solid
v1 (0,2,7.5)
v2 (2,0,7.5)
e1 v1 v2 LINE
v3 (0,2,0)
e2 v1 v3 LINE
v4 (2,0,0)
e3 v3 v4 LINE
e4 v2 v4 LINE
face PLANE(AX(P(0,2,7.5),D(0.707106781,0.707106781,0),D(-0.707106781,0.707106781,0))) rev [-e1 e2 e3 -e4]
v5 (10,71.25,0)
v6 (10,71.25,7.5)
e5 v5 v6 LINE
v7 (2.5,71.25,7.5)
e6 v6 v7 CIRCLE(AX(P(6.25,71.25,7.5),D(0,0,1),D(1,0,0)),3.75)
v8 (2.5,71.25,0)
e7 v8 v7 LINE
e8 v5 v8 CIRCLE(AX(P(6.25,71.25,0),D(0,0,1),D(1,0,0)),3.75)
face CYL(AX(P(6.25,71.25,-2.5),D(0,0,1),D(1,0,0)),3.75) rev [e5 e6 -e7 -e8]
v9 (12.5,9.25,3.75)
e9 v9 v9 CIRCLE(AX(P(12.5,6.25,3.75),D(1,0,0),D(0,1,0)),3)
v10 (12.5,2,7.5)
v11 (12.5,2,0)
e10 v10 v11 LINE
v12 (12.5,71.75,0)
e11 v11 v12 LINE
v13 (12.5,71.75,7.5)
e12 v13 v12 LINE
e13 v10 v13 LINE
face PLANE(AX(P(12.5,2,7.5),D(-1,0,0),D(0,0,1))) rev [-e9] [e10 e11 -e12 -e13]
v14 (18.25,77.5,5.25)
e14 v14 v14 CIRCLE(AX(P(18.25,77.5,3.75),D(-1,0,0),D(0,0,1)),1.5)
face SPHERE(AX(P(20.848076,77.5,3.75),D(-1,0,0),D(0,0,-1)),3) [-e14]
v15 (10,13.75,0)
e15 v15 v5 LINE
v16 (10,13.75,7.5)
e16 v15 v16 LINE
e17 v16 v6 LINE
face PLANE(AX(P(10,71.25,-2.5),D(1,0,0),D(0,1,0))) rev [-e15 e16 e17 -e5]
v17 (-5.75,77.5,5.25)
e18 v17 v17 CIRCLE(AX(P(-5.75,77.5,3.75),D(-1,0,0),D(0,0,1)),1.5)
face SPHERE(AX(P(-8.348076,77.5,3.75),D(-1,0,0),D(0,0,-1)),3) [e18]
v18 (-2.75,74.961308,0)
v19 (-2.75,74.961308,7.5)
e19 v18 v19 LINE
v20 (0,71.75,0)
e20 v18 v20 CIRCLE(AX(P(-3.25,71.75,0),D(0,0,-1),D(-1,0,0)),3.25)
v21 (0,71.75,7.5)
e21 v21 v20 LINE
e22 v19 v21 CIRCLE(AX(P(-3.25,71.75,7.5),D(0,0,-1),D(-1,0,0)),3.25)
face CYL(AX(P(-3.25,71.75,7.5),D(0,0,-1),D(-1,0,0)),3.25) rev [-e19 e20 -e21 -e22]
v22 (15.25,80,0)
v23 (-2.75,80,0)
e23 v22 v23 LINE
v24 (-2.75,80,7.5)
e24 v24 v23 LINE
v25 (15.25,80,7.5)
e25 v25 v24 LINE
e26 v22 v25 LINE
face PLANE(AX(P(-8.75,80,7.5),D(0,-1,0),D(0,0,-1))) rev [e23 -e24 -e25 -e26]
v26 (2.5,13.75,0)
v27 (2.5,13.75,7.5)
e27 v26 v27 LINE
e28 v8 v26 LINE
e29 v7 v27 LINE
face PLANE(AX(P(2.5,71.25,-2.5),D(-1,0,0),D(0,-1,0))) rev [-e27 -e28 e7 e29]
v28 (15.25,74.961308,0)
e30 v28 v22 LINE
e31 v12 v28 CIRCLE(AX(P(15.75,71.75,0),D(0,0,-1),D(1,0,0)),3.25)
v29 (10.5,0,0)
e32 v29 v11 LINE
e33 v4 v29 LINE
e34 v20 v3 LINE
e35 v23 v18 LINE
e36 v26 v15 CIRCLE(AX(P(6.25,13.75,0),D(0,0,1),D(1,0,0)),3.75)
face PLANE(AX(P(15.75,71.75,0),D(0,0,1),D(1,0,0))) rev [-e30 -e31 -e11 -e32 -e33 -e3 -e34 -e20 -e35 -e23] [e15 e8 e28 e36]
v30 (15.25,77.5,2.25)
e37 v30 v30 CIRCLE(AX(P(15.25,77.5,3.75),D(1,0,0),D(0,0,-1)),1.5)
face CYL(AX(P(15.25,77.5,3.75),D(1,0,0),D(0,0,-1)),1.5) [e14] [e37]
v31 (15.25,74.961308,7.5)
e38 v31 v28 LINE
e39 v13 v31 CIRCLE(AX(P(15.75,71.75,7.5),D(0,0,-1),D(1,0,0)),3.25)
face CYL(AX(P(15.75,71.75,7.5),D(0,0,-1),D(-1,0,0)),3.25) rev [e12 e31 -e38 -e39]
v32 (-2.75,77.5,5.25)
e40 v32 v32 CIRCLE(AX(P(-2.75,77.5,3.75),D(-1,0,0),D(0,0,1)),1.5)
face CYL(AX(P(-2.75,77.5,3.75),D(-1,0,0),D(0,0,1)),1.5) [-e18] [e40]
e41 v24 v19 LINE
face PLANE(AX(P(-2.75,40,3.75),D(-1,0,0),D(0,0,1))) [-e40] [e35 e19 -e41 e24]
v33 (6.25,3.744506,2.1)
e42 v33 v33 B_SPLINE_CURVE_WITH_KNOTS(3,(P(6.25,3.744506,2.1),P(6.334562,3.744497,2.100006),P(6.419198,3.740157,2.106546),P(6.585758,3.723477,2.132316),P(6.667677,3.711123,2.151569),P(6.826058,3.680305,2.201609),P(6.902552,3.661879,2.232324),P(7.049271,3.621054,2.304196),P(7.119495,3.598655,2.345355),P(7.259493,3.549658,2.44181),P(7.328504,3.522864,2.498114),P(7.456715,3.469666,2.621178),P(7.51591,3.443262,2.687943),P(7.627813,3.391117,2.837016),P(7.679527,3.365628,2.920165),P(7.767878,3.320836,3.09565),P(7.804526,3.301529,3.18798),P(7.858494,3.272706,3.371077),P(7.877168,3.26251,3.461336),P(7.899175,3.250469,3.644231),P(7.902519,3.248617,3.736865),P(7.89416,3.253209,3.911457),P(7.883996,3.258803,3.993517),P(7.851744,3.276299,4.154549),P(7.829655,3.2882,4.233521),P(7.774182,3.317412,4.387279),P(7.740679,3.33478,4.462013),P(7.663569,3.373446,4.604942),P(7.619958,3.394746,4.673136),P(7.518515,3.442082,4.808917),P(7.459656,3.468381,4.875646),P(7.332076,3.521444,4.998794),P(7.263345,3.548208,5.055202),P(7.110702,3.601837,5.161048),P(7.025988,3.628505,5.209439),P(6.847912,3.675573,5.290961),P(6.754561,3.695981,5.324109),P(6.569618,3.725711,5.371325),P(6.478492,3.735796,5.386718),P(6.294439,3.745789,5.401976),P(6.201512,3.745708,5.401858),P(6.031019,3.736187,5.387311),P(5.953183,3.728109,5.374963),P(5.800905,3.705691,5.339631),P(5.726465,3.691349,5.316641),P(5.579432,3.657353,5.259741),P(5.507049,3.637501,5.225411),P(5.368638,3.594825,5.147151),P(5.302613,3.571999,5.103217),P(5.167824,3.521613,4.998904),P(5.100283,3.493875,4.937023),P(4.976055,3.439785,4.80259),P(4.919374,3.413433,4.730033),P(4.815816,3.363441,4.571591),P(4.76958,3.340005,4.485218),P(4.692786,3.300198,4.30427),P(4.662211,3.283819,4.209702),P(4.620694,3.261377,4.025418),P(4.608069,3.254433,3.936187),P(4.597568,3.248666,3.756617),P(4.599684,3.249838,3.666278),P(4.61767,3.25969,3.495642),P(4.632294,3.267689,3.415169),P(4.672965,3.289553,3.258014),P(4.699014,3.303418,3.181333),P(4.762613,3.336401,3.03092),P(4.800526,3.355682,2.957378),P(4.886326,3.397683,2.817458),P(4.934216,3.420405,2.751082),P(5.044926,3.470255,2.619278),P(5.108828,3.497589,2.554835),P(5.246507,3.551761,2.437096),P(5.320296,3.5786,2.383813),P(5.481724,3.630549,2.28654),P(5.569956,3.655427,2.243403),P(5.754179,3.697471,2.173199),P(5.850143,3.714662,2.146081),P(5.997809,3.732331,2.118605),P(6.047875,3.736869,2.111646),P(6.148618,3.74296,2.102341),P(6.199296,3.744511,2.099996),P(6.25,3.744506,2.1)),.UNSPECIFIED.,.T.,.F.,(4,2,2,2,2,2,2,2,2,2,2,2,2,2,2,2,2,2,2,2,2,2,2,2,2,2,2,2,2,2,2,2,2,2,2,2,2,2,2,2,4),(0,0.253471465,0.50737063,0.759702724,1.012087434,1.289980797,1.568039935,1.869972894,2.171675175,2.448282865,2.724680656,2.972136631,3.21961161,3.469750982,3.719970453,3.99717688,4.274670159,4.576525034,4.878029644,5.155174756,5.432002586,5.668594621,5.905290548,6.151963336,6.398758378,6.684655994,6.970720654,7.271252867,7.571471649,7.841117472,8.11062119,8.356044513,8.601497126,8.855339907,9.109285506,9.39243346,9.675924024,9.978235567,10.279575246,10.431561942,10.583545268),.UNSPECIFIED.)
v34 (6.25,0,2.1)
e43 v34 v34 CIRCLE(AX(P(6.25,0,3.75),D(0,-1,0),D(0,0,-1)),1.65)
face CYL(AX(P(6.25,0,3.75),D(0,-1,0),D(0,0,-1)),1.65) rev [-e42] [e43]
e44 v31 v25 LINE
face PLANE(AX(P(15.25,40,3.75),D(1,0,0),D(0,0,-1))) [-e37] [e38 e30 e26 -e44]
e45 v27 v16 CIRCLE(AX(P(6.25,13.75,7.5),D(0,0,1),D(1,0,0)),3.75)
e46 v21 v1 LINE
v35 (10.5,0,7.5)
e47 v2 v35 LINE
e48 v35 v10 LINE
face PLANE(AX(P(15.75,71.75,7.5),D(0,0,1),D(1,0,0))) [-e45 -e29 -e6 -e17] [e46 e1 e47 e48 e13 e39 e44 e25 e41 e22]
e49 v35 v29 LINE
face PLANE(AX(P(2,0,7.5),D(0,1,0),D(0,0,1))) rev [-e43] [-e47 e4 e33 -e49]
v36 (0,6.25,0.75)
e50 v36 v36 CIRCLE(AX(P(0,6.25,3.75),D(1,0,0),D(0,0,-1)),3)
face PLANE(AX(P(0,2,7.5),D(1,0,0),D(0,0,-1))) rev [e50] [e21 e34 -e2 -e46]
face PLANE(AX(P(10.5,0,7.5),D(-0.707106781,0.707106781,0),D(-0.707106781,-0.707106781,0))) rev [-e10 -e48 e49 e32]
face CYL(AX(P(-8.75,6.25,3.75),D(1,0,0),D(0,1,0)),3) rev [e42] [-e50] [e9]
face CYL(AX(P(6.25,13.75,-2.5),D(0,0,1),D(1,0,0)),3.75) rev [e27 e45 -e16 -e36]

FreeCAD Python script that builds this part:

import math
import FreeCAD as App
import Part
import Sketcher

doc = App.newDocument("Part")
params = doc.addObject("Spreadsheet::Sheet", "Params")
for row, (alias, value) in enumerate([
    ("sketch1_width", "30 mm"),
    ("sketch1_height", "5 mm"),
    ("sketch1_radius", "3.25 mm"),
    ("sketch1_width2", "5.5 mm"),
    ("sketch1_width3", "8.5 mm"),
    ("pad1_length", "7.5 mm"),
    ("sketch2_radius", "3.75 mm"),
    ("sketch2_height", "57.5 mm"),
    ("pocket1_length", "10 mm"),
    ("sketch3_diameter", "6 mm"),
    ("sketch4_diameter", "3.3 mm"),
    ("hole_diameter", "3.3 mm"),
    ("hole_depth", "7.5 mm"),
    ("sketch5_diameter", "3 mm"),
    ("pocket3_length", "6 mm"),
    ("sketch6_diameter", "3 mm"),
    ("pocket4_length", "6 mm"),
    ("sketch7_radius", "3 mm"),
    ("sketch7_height", "1.5 mm"),
    ("revolution_angle", "360 deg"),
], start=1):
    params.set(f"A{row}", alias)
    params.set(f"B{row}", "=" + value)
    params.setAlias(f"B{row}", alias)

body = doc.addObject("PartDesign::Body", "Body")

# Sketch on XY plane
sketch1 = doc.addObject("Sketcher::SketchObject", "Sketch")
body.addObject(sketch1)
sketch1.AttachmentSupport = (doc.XY_Plane, [""])
sketch1.MapMode = "FlatFace"
sketch1.addGeometry([
    Part.LineSegment(App.Vector(-8.8, 75, 0), App.Vector(-3.2, 75, 0)),  # 0
    Part.ArcOfCircle(Part.Circle(App.Vector(-3.2, 71.8, 0), App.Vector(0, 0, 1), 3.2), math.radians(0), math.radians(90)),  # 1
    Part.LineSegment(App.Vector(0, 71.8, 0), App.Vector(0, 2, 0)),  # 2
    Part.LineSegment(App.Vector(0, 2, 0), App.Vector(2, 0, 0)),  # 3
    Part.LineSegment(App.Vector(2, 0, 0), App.Vector(10.5, 0, 0)),  # 4
    Part.LineSegment(App.Vector(10.5, 0, 0), App.Vector(12.5, 2, 0)),  # 5
    Part.LineSegment(App.Vector(12.5, 2, 0), App.Vector(12.5, 71.8, 0)),  # 6
    Part.ArcOfCircle(Part.Circle(App.Vector(15.8, 71.8, 0), App.Vector(0, 0, 1), 3.2), math.radians(90), math.radians(180)),  # 7
    Part.LineSegment(App.Vector(15.8, 75, 0), App.Vector(21.2, 75, 0)),  # 8
    Part.LineSegment(App.Vector(21.2, 75, 0), App.Vector(21.2, 80, 0)),  # 9
    Part.LineSegment(App.Vector(21.2, 80, 0), App.Vector(-8.8, 80, 0)),  # 10
    Part.LineSegment(App.Vector(-8.8, 80, 0), App.Vector(-8.8, 75, 0)),  # 11
], False)
sketch1.addConstraint([
    Sketcher.Constraint("Tangent", 0, 2, 1, 2),
    Sketcher.Constraint("Tangent", 1, 1, 2, 1),
    Sketcher.Constraint("Coincident", 2, 2, 3, 1),
    Sketcher.Constraint("Coincident", 3, 2, 4, 1),
    Sketcher.Constraint("Coincident", 4, 2, 5, 1),
    Sketcher.Constraint("Coincident", 5, 2, 6, 1),
    Sketcher.Constraint("Tangent", 6, 2, 7, 2),
    Sketcher.Constraint("Tangent", 7, 1, 8, 1),
    Sketcher.Constraint("Coincident", 8, 2, 9, 1),
    Sketcher.Constraint("Coincident", 9, 2, 10, 1),
    Sketcher.Constraint("Coincident", 10, 2, 11, 1),
    Sketcher.Constraint("Coincident", 11, 2, 0, 1),
    Sketcher.Constraint("Horizontal", 0),
    Sketcher.Constraint("Vertical", 2),
    Sketcher.Constraint("Horizontal", 4),
    Sketcher.Constraint("Vertical", 6),
    Sketcher.Constraint("Horizontal", 8),
    Sketcher.Constraint("Vertical", 9),
    Sketcher.Constraint("Horizontal", 10),
    Sketcher.Constraint("Vertical", 11),
    Sketcher.Constraint("Equal", 1, 7),
    Sketcher.Constraint("PointOnObject", 1, 1, -2),
    Sketcher.Constraint("PointOnObject", 3, 2, -1),
    Sketcher.Constraint("Perpendicular", 3, 5),
    Sketcher.Constraint("Horizontal", 1, 3, 7, 3),
    Sketcher.Constraint("Horizontal", 2, 2, 5, 2),
    Sketcher.Constraint("Equal", 0, 8),
    Sketcher.Constraint("Equal", 3, 5),
    Sketcher.Constraint("DistanceX", 10, 2, 10, 1, 30.0),
    Sketcher.Constraint("DistanceY", 9, 1, 9, 2, 5.0),
    Sketcher.Constraint("Radius", 1, 3.25),
    Sketcher.Constraint("DistanceX", 0, 1, 0, 2, 5.5),
    Sketcher.Constraint("DistanceX", 4, 1, 4, 2, 8.5),
    Sketcher.Constraint("DistanceY", -1, 1, 0, 2, 75.0),
])
sketch1.setExpression("Constraints[28]", "Params.sketch1_width")
sketch1.setExpression("Constraints[29]", "Params.sketch1_height")
sketch1.setExpression("Constraints[30]", "Params.sketch1_radius")
sketch1.setExpression("Constraints[31]", "Params.sketch1_width2")
sketch1.setExpression("Constraints[32]", "Params.sketch1_width3")
pad1 = doc.addObject("PartDesign::Pad", "Pad")
body.addObject(pad1)
pad1.Profile = sketch1
pad1.setExpression("Length", "Params.pad1_length")

# Sketch on XY plane
sketch2 = doc.addObject("Sketcher::SketchObject", "Sketch001")
body.addObject(sketch2)
sketch2.AttachmentSupport = (doc.XY_Plane, [""])
sketch2.MapMode = "FlatFace"
sketch2.AttachmentOffset = App.Placement(App.Vector(0, 0, 7.5), App.Rotation())
sketch2.addGeometry([
    Part.LineSegment(App.Vector(10, 13.8, 0), App.Vector(10, 71.2, 0)),
    Part.ArcOfCircle(Part.Circle(App.Vector(6.2, 71.2, 0), App.Vector(0, 0, 1), 3.8), math.radians(0), math.radians(180)),
    Part.LineSegment(App.Vector(2.5, 71.2, 0), App.Vector(2.5, 13.8, 0)),
    Part.ArcOfCircle(Part.Circle(App.Vector(6.2, 13.8, 0), App.Vector(0, 0, 1), 3.8), math.radians(180), math.radians(360)),
], False)
sketch2.addConstraint([
    Sketcher.Constraint("Tangent", 0, 2, 1, 1),
    Sketcher.Constraint("Tangent", 1, 2, 2, 1),
    Sketcher.Constraint("Tangent", 2, 2, 3, 1),
    Sketcher.Constraint("Tangent", 3, 2, 0, 1),
    Sketcher.Constraint("Vertical", 0),
    Sketcher.Constraint("Vertical", 2),
    Sketcher.Constraint("Radius", 1, 3.75),
    Sketcher.Constraint("DistanceY", 0, 1, 0, 2, 57.5),
    Sketcher.Constraint("DistanceX", -1, 1, 0, 2, 10.0),
    Sketcher.Constraint("DistanceY", -1, 1, 1, 3, 71.25),
])
sketch2.setExpression("Constraints[6]", "Params.sketch2_radius")
sketch2.setExpression("Constraints[7]", "Params.sketch2_height")
pocket1 = doc.addObject("PartDesign::Pocket", "Pocket")
body.addObject(pocket1)
pocket1.Profile = sketch2
pocket1.setExpression("Length", "Params.pocket1_length")

# Sketch on YZ plane
sketch3 = doc.addObject("Sketcher::SketchObject", "Sketch002")
body.addObject(sketch3)
sketch3.AttachmentSupport = (doc.YZ_Plane, [""])
sketch3.MapMode = "FlatFace"
sketch3.AttachmentOffset = App.Placement(App.Vector(0, 0, 12.5), App.Rotation())
sketch3.addGeometry(Part.Circle(App.Vector(6.2, 3.8, 0), App.Vector(0, 0, 1), 3), False)
sketch3.addConstraint([
    Sketcher.Constraint("Diameter", 0, 6.0),
    Sketcher.Constraint("DistanceX", -1, 1, 0, 3, 6.25),
    Sketcher.Constraint("DistanceY", -1, 1, 0, 3, 3.75),
])
sketch3.setExpression("Constraints[0]", "Params.sketch3_diameter")
pocket2 = doc.addObject("PartDesign::Pocket", "Pocket001")
body.addObject(pocket2)
pocket2.Profile = sketch3
pocket2.Type = "ThroughAll"

# Sketch on XZ plane
sketch4 = doc.addObject("Sketcher::SketchObject", "Sketch003")
body.addObject(sketch4)
sketch4.AttachmentSupport = (doc.XZ_Plane, [""])
sketch4.MapMode = "FlatFace"
sketch4.addGeometry(Part.Circle(App.Vector(6.2, 3.8, 0), App.Vector(0, 0, 1), 1.6), False)
sketch4.addConstraint([
    Sketcher.Constraint("Diameter", 0, 3.3),
    Sketcher.Constraint("DistanceX", -1, 1, 0, 3, 6.25),
    Sketcher.Constraint("DistanceY", -1, 1, 0, 3, 3.75),
])
sketch4.setExpression("Constraints[0]", "Params.sketch4_diameter")
doc.recompute()
hole = doc.addObject("PartDesign::Hole", "Hole")
body.addObject(hole)
hole.Profile = sketch4
hole.ThreadType = "None"
hole.setExpression("Diameter", "Params.hole_diameter")
hole.DepthType = "Dimension"
hole.setExpression("Depth", "Params.hole_depth")
hole.DrillPoint = "Angled"
hole.DrillPointAngle = 118

# Sketch on YZ plane
sketch5 = doc.addObject("Sketcher::SketchObject", "Sketch004")
body.addObject(sketch5)
sketch5.AttachmentSupport = (doc.YZ_Plane, [""])
sketch5.MapMode = "FlatFace"
sketch5.AttachmentOffset = App.Placement(App.Vector(0, 0, 21.25), App.Rotation())
sketch5.addGeometry([
    Part.LineSegment(App.Vector(89.6, 17.1, 0), App.Vector(-9.6, 17.1, 0)),  # 0
    Part.LineSegment(App.Vector(-9.6, 17.1, 0), App.Vector(-9.6, -9.6, 0)),  # 1
    Part.LineSegment(App.Vector(-9.6, -9.6, 0), App.Vector(89.6, -9.6, 0)),  # 2
    Part.LineSegment(App.Vector(89.6, -9.6, 0), App.Vector(89.6, 17.1, 0)),  # 3
    Part.Circle(App.Vector(77.5, 3.8, 0), App.Vector(0, 0, 1), 1.5),  # 4
], False)
sketch5.addConstraint([
    Sketcher.Constraint("Coincident", 0, 2, 1, 1),
    Sketcher.Constraint("Coincident", 1, 2, 2, 1),
    Sketcher.Constraint("Coincident", 2, 2, 3, 1),
    Sketcher.Constraint("Coincident", 3, 2, 0, 1),
    Sketcher.Constraint("Horizontal", 0),
    Sketcher.Constraint("Vertical", 1),
    Sketcher.Constraint("Horizontal", 2),
    Sketcher.Constraint("Vertical", 3),
    Sketcher.Constraint("Diameter", 4, 3.0),
    Sketcher.Constraint("DistanceX", -1, 1, 4, 3, 77.5),
    Sketcher.Constraint("DistanceX", 0, 2, 0, 1, 99.154),
    Sketcher.Constraint("DistanceY", 1, 2, 1, 1, 26.654),
    Sketcher.Constraint("DistanceY", -1, 1, 4, 3, 3.75),
    Sketcher.Constraint("DistanceX", 0, 2, -1, 1, 9.577),
    Sketcher.Constraint("DistanceY", -1, 1, 0, 2, 17.077),
])
sketch5.setExpression("Constraints[8]", "Params.sketch5_diameter")
pocket3 = doc.addObject("PartDesign::Pocket", "Pocket002")
body.addObject(pocket3)
pocket3.Profile = sketch5
pocket3.setExpression("Length", "Params.pocket3_length")

# Sketch on YZ plane
sketch6 = doc.addObject("Sketcher::SketchObject", "Sketch005")
body.addObject(sketch6)
sketch6.AttachmentSupport = (doc.YZ_Plane, [""])
sketch6.MapMode = "FlatFace"
sketch6.AttachmentOffset = App.Placement(App.Vector(0, 0, -8.75), App.Rotation())
sketch6.addGeometry([
    Part.LineSegment(App.Vector(89.6, -9.6, 0), App.Vector(-9.6, -9.6, 0)),  # 0
    Part.LineSegment(App.Vector(-9.6, -9.6, 0), App.Vector(-9.6, 17.1, 0)),  # 1
    Part.LineSegment(App.Vector(-9.6, 17.1, 0), App.Vector(89.6, 17.1, 0)),  # 2
    Part.LineSegment(App.Vector(89.6, 17.1, 0), App.Vector(89.6, -9.6, 0)),  # 3
    Part.Circle(App.Vector(77.5, 3.8, 0), App.Vector(0, 0, 1), 1.5),  # 4
], False)
sketch6.addConstraint([
    Sketcher.Constraint("Coincident", 0, 2, 1, 1),
    Sketcher.Constraint("Coincident", 1, 2, 2, 1),
    Sketcher.Constraint("Coincident", 2, 2, 3, 1),
    Sketcher.Constraint("Coincident", 3, 2, 0, 1),
    Sketcher.Constraint("Horizontal", 0),
    Sketcher.Constraint("Vertical", 1),
    Sketcher.Constraint("Horizontal", 2),
    Sketcher.Constraint("Vertical", 3),
    Sketcher.Constraint("Diameter", 4, 3.0),
    Sketcher.Constraint("DistanceX", -1, 1, 4, 3, 77.5),
    Sketcher.Constraint("DistanceX", 0, 2, 0, 1, 99.154),
    Sketcher.Constraint("DistanceY", 1, 1, 1, 2, 26.654),
    Sketcher.Constraint("DistanceY", -1, 1, 4, 3, 3.75),
    Sketcher.Constraint("DistanceX", 0, 2, -1, 1, 9.577),
    Sketcher.Constraint("DistanceY", 0, 2, -1, 1, 9.577),
])
sketch6.setExpression("Constraints[8]", "Params.sketch6_diameter")
pocket4 = doc.addObject("PartDesign::Pocket", "Pocket003")
body.addObject(pocket4)
pocket4.Profile = sketch6
pocket4.setExpression("Length", "Params.pocket4_length")
pocket4.Reversed = True

# Sketch on XZ plane
sketch7 = doc.addObject("Sketcher::SketchObject", "Sketch006")
body.addObject(sketch7)
sketch7.AttachmentSupport = (doc.XZ_Plane, [""])
sketch7.MapMode = "FlatFace"
sketch7.AttachmentOffset = App.Placement(App.Vector(0, 0, -77.5), App.Rotation())
sketch7.addGeometry([
    Part.LineSegment(App.Vector(18.2, 2.2, 0), App.Vector(18.2, 3.8, 0)),  # 0
    Part.LineSegment(App.Vector(18.2, 3.8, 0), App.Vector(23.8, 3.8, 0)),  # 1
    Part.ArcOfCircle(Part.Circle(App.Vector(20.8, 3.7, 0), App.Vector(0, 0, 1), 3), math.radians(-150), math.radians(0)),  # 2
    Part.LineSegment(App.Vector(-5.8, 3.8, 0), App.Vector(-5.8, 2.2, 0)),  # 3
    Part.ArcOfCircle(Part.Circle(App.Vector(-8.3, 3.7, 0), App.Vector(0, 0, 1), 3), math.radians(180), math.radians(330)),  # 4
    Part.LineSegment(App.Vector(-11.3, 3.8, 0), App.Vector(-5.8, 3.8, 0)),  # 5
], False)
sketch7.addGeometry(Part.LineSegment(App.Vector(-11.3, 3.8, 0), App.Vector(23.8, 3.8, 0)), True)  # axis
sketch7.addConstraint([
    Sketcher.Constraint("Coincident", 0, 2, 1, 1),
    Sketcher.Constraint("Coincident", 1, 2, 2, 2),
    Sketcher.Constraint("Coincident", 2, 1, 0, 1),
    Sketcher.Constraint("Coincident", 3, 2, 4, 2),
    Sketcher.Constraint("Coincident", 4, 1, 5, 1),
    Sketcher.Constraint("Coincident", 5, 2, 3, 1),
    Sketcher.Constraint("Vertical", 0),
    Sketcher.Constraint("Horizontal", 1),
    Sketcher.Constraint("Vertical", 3),
    Sketcher.Constraint("Horizontal", 5),
    Sketcher.Constraint("Horizontal", 6),
    Sketcher.Constraint("Coincident", 6, 1, 4, 1),
    Sketcher.Constraint("Coincident", 6, 2, 1, 2),
    Sketcher.Constraint("Equal", 2, 4),
    Sketcher.Constraint("Horizontal", 2, 3, 4, 3),
    Sketcher.Constraint("Horizontal", 4, 3, 0, 2),
    Sketcher.Constraint("Horizontal", 2, 1, 3, 2),
    Sketcher.Constraint("Radius", 2, 3.0),
    Sketcher.Constraint("DistanceY", 0, 1, 0, 2, 1.5),
    Sketcher.Constraint("DistanceX", 3, 2, 2, 1, 24.0),
    Sketcher.Constraint("DistanceY", -1, 1, 2, 3, 3.75),
    Sketcher.Constraint("DistanceX", -1, 1, 0, 2, 18.25),
])
sketch7.setExpression("Constraints[17]", "Params.sketch7_radius")
sketch7.setExpression("Constraints[18]", "Params.sketch7_height")
revolution = doc.addObject("PartDesign::Revolution", "Revolution")
body.addObject(revolution)
revolution.Profile = sketch7
revolution.ReferenceAxis = (sketch7, ["Axis0"])
revolution.setExpression("Angle", "Params.revolution_angle")

doc.recompute()
